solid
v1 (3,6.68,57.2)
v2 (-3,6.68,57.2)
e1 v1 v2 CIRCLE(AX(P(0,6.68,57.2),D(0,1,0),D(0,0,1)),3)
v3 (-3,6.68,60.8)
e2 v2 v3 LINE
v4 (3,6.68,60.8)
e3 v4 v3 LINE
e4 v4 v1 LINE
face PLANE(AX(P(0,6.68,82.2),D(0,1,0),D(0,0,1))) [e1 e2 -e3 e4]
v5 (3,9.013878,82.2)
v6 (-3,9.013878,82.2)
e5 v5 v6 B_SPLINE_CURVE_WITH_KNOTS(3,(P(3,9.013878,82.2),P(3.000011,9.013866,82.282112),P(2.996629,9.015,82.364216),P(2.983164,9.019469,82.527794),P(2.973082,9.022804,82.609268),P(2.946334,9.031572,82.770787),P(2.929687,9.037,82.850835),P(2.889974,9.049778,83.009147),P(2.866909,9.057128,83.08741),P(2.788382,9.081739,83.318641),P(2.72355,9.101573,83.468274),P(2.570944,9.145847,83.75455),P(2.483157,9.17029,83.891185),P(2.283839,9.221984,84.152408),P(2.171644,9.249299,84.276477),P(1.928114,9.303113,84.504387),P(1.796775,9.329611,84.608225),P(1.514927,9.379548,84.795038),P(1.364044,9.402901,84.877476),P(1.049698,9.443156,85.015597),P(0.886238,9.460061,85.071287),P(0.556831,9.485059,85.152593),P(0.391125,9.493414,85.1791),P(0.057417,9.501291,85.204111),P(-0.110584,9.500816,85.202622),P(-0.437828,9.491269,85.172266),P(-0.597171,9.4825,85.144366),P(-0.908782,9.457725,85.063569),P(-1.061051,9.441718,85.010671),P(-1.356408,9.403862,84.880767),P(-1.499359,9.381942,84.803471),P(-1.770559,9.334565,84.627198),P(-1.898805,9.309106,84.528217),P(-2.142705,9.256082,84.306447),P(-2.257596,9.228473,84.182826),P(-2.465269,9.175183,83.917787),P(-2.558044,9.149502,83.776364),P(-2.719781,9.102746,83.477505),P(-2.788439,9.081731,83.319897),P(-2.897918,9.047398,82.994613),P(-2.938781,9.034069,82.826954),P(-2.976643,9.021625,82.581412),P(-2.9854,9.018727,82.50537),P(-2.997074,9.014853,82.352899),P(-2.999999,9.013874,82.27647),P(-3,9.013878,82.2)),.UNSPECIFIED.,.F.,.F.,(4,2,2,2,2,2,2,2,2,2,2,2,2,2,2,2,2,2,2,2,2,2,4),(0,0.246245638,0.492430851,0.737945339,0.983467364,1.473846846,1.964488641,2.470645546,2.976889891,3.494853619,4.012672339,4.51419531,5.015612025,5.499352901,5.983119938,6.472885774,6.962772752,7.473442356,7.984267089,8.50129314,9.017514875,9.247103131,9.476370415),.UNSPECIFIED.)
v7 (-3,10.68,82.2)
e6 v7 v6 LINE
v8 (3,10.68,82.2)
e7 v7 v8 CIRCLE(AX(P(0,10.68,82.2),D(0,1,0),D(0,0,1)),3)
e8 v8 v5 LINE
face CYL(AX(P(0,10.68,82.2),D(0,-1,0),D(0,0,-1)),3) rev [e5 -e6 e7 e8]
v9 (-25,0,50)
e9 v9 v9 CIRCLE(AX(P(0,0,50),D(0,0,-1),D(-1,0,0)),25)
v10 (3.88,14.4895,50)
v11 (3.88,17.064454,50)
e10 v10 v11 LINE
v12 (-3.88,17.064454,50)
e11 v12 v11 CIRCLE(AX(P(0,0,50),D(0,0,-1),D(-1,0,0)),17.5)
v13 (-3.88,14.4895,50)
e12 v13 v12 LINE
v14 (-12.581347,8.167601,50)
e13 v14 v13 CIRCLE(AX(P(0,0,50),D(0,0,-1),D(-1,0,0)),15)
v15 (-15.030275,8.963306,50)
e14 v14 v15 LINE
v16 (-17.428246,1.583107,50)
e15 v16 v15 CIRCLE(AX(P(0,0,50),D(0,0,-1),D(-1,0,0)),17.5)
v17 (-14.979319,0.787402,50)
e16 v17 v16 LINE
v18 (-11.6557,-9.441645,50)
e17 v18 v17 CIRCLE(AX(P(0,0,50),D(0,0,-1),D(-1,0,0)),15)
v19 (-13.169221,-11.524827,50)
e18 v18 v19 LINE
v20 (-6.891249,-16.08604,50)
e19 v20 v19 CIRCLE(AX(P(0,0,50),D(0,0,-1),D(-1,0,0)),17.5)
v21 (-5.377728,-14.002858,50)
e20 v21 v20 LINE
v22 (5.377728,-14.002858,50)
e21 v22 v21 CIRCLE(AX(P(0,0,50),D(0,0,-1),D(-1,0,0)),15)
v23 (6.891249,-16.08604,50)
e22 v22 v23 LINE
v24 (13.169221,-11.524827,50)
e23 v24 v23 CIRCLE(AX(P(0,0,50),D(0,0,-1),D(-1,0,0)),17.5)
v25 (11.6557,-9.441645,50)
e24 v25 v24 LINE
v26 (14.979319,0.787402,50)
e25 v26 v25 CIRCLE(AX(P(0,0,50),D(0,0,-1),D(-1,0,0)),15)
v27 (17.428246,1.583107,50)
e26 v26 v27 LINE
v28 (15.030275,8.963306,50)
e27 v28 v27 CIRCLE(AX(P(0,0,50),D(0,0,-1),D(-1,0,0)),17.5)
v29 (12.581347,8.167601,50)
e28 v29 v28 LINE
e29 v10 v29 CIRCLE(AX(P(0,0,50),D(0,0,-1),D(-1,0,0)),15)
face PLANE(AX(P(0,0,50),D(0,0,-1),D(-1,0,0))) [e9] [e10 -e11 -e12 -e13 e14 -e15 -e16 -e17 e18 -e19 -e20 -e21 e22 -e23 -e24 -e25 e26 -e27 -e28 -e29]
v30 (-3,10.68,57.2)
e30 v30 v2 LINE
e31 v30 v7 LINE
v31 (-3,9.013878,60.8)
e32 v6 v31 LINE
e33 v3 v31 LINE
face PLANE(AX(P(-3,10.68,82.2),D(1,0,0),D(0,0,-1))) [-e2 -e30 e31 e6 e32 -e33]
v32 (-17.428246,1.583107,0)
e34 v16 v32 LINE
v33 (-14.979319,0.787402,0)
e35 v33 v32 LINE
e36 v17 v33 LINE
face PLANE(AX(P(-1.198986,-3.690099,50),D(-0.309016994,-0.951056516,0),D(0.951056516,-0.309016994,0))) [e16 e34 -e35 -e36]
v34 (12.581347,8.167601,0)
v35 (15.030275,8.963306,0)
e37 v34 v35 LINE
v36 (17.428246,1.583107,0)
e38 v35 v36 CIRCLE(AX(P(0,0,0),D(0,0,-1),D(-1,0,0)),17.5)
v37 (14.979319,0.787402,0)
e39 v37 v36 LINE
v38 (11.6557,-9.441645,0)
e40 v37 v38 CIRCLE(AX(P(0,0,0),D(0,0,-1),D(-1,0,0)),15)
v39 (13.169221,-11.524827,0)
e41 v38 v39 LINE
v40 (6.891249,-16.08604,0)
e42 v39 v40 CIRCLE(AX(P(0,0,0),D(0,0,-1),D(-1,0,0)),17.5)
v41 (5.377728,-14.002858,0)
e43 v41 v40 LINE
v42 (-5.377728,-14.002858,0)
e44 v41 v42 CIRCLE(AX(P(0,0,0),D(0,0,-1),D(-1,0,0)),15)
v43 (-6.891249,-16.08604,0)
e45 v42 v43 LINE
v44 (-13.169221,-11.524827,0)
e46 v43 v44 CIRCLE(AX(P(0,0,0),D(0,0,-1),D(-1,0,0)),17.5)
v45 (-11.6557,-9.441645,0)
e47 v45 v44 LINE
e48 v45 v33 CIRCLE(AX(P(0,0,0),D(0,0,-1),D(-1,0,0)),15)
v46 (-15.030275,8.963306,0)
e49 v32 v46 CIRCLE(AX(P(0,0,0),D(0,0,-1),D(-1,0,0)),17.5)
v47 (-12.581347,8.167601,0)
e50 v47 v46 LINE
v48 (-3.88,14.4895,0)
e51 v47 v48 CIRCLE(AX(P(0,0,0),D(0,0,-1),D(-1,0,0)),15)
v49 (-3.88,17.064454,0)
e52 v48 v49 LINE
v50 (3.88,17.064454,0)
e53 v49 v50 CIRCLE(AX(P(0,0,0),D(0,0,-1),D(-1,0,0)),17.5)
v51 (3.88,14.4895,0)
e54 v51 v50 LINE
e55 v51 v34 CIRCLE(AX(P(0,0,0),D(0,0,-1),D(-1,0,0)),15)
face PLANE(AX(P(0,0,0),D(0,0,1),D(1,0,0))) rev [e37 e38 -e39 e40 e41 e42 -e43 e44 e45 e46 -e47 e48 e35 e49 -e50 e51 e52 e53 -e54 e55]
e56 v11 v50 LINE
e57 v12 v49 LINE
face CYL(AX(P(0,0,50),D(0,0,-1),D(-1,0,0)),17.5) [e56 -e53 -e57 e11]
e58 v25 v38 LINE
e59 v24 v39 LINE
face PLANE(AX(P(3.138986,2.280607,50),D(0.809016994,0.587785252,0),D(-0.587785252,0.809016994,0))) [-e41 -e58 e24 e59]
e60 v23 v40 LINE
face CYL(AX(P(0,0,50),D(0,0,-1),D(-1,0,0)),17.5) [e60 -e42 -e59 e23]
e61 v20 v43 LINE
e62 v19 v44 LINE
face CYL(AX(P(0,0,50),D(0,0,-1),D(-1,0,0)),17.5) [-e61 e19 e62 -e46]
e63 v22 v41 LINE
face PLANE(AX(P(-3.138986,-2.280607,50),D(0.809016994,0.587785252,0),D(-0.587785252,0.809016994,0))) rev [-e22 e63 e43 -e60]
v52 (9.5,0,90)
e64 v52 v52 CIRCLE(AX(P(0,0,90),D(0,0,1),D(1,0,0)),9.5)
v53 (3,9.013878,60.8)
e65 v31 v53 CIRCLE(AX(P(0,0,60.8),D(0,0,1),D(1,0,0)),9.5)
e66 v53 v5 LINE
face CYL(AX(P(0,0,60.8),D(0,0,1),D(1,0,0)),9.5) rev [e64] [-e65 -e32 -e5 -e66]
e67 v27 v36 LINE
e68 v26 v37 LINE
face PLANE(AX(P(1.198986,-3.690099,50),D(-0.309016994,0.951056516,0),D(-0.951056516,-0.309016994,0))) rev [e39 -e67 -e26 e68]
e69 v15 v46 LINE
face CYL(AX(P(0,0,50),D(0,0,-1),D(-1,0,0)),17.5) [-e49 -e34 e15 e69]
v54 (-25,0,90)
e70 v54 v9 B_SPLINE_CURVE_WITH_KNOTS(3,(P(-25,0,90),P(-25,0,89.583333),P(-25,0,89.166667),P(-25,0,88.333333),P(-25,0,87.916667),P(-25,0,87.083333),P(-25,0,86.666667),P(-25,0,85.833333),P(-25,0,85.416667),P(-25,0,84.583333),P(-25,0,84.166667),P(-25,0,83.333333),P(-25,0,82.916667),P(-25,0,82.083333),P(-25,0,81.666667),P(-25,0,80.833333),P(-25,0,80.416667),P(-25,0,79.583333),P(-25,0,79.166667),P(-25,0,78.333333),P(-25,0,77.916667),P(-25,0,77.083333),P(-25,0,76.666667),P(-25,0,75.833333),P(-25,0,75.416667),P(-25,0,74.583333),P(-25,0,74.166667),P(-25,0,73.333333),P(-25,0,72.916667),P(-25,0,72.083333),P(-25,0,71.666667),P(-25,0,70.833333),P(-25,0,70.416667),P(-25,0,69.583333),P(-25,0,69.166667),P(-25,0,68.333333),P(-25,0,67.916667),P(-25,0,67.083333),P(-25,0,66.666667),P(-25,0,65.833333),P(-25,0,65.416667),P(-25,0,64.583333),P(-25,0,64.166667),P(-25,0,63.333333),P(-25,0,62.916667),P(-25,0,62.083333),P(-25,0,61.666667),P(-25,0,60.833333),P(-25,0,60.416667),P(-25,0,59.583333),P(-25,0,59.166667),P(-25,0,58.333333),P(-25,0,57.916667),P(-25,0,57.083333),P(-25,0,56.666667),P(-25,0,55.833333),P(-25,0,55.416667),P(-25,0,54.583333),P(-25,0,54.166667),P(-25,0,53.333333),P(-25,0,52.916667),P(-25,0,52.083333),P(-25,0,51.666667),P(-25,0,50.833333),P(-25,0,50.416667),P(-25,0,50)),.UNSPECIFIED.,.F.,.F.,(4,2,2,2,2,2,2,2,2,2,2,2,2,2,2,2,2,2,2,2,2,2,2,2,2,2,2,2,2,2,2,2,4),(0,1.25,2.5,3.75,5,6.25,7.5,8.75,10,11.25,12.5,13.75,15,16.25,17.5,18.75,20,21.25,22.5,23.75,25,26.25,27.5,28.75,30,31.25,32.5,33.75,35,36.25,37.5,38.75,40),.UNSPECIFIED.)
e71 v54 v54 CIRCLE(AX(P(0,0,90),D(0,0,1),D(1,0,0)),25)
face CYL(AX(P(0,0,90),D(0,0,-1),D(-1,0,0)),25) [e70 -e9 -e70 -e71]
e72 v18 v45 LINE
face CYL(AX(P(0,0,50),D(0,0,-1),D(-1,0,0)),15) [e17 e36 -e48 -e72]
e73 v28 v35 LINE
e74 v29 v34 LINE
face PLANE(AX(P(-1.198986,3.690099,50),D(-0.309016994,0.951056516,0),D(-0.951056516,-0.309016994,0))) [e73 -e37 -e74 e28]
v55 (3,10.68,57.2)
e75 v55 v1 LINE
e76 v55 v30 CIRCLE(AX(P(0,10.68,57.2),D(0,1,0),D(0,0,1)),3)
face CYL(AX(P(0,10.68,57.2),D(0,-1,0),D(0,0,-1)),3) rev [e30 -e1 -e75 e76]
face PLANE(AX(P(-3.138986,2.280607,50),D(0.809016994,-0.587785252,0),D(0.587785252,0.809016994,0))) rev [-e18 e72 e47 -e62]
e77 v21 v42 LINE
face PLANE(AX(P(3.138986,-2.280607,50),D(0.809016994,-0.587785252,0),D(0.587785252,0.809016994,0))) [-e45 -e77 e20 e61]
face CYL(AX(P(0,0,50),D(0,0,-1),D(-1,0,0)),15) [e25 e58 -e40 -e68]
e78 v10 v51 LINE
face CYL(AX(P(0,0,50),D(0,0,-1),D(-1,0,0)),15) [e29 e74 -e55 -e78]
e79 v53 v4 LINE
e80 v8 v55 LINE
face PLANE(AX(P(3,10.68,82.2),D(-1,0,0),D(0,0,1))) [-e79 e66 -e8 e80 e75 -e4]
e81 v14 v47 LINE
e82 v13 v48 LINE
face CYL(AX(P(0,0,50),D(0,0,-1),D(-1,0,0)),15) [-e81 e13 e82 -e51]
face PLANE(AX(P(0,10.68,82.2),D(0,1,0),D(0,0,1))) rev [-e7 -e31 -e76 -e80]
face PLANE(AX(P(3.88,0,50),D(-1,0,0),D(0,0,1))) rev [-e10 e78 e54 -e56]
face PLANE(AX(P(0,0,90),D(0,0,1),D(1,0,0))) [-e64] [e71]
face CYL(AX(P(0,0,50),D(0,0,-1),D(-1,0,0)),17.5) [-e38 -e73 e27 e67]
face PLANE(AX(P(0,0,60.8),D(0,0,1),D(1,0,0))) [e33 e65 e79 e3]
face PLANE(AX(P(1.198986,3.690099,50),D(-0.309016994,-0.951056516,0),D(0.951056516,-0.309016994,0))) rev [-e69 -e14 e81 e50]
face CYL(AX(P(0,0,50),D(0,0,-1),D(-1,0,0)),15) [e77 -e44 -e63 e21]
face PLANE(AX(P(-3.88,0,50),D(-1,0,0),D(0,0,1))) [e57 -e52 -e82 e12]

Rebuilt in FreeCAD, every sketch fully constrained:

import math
import FreeCAD as App
import Part
import Sketcher

V = App.Vector
Q = App.Units.Quantity

doc = App.newDocument("Part")
body = doc.addObject("PartDesign::Body", "Body")

sketch1 = body.newObject("Sketcher::SketchObject", "Sketch")
sketch1.AttachmentSupport = (doc.getObject("XY_Plane"), [""])
sketch1.MapMode = "FlatFace"
sketch1.addGeometry(Part.Circle(V(0, 0, 0), V(0, 0, 1), 25), False)
sketch1.addConstraint(Sketcher.Constraint("Coincident", 0, 3, -1, 1))
sketch1.addConstraint(Sketcher.Constraint("Diameter", 0, Q("50 mm")))
pad1 = body.newObject("PartDesign::Pad", "Pad")
pad1.Profile = sketch1
pad1.Length = 90

sketch2 = body.newObject("Sketcher::SketchObject", "Sketch001")
sketch2.AttachmentSupport = (doc.getObject("XY_Plane"), [""])
sketch2.MapMode = "FlatFace"
sketch2.addGeometry(Part.Circle(V(0, 0, 0), V(0, 0, 1), 25), False)
sketch2.addGeometry(Part.ArcOfCircle(Part.Circle(V(0, 0, 0), V(0, 0, 1), 17.5), math.radians(77), math.radians(103)), False)
sketch2.addGeometry(Part.ArcOfCircle(Part.Circle(V(0, 0, 0), V(0, 0, 1), 17.5), math.radians(103), math.radians(149)), False)
sketch2.addGeometry(Part.ArcOfCircle(Part.Circle(V(0, 0, 0), V(0, 0, 1), 17.5), math.radians(149), math.radians(175)), False)
sketch2.addGeometry(Part.ArcOfCircle(Part.Circle(V(0, 0, 0), V(0, 0, 1), 17.5), math.radians(174.81), math.radians(180)), False)
sketch2.addGeometry(Part.ArcOfCircle(Part.Circle(V(0, 0, 0), V(0, 0, 1), 17.5), math.radians(180), math.radians(221)), False)
sketch2.addGeometry(Part.ArcOfCircle(Part.Circle(V(0, 0, 0), V(0, 0, 1), 17.5), math.radians(-139), math.radians(-113)), False)
sketch2.addGeometry(Part.ArcOfCircle(Part.Circle(V(0, 0, 0), V(0, 0, 1), 17.5), math.radians(-113), math.radians(-67)), False)
sketch2.addGeometry(Part.ArcOfCircle(Part.Circle(V(0, 0, 0), V(0, 0, 1), 17.5), math.radians(-67), math.radians(-41)), False)
sketch2.addGeometry(Part.ArcOfCircle(Part.Circle(V(0, 0, 0), V(0, 0, 1), 17.5), math.radians(-41), math.radians(5)), False)
sketch2.addGeometry(Part.ArcOfCircle(Part.Circle(V(0, 0, 0), V(0, 0, 1), 17.5), math.radians(5), math.radians(31)), False)
sketch2.addGeometry(Part.ArcOfCircle(Part.Circle(V(0, 0, 0), V(0, 0, 1), 17.5), math.radians(31), math.radians(77)), False)
sketch2.addConstraint(Sketcher.Constraint("Tangent", 1, 2, 2, 1))
sketch2.addConstraint(Sketcher.Constraint("Tangent", 2, 2, 3, 1))
sketch2.addConstraint(Sketcher.Constraint("Tangent", 3, 2, 4, 1))
sketch2.addConstraint(Sketcher.Constraint("Tangent", 4, 2, 5, 1))
sketch2.addConstraint(Sketcher.Constraint("Tangent", 5, 2, 6, 1))
sketch2.addConstraint(Sketcher.Constraint("Tangent", 6, 2, 7, 1))
sketch2.addConstraint(Sketcher.Constraint("Tangent", 7, 2, 8, 1))
sketch2.addConstraint(Sketcher.Constraint("Tangent", 8, 2, 9, 1))
sketch2.addConstraint(Sketcher.Constraint("Tangent", 9, 2, 10, 1))
sketch2.addConstraint(Sketcher.Constraint("Tangent", 10, 2, 11, 1))
sketch2.addConstraint(Sketcher.Constraint("Tangent", 11, 2, 1, 1))
sketch2.addConstraint(Sketcher.Constraint("Coincident", 0, 3, -1, 1))
sketch2.addConstraint(Sketcher.Constraint("Coincident", 1, 3, -1, 1))
sketch2.addConstraint(Sketcher.Constraint("Coincident", 3, 3, -1, 1))
sketch2.addConstraint(Sketcher.Constraint("Coincident", 5, 3, -1, 1))
sketch2.addConstraint(Sketcher.Constraint("Coincident", 7, 3, -1, 1))
sketch2.addConstraint(Sketcher.Constraint("Coincident", 9, 3, -1, 1))
sketch2.addConstraint(Sketcher.Constraint("PointOnObject", 4, 2, -1))
sketch2.addConstraint(Sketcher.Constraint("Horizontal", 6, 2, 7, 2))
sketch2.addConstraint(Sketcher.Constraint("Horizontal", 5, 2, 8, 2))
sketch2.addConstraint(Sketcher.Constraint("Horizontal", 3, 2, 9, 2))
sketch2.addConstraint(Sketcher.Constraint("Horizontal", 2, 2, 10, 2))
sketch2.addConstraint(Sketcher.Constraint("Horizontal", 1, 2, 11, 2))
sketch2.addConstraint(Sketcher.Constraint("Diameter", 0, Q("50 mm")))
sketch2.addConstraint(Sketcher.Constraint("Radius", 1, Q("17.5 mm")))
sketch2.addConstraint(Sketcher.Constraint("DistanceX", 1, 2, -1, 1, Q("3.88 mm")))
sketch2.addConstraint(Sketcher.Constraint("DistanceY", 3, 2, 2, 2, Q("7.380199 mm")))
sketch2.addConstraint(Sketcher.Constraint("DistanceX", 5, 2, -1, 1, Q("13.169221 mm")))
sketch2.addConstraint(Sketcher.Constraint("DistanceX", 6, 2, -1, 1, Q("6.891249 mm")))
sketch2.addConstraint(Sketcher.Constraint("DistanceY", 2, 2, 1, 2, Q("8.101149 mm")))
pocket1 = body.newObject("PartDesign::Pocket", "Pocket")
pocket1.Profile = sketch2
pocket1.Length = 50
pocket1.Reversed = True

sketch3 = body.newObject("Sketcher::SketchObject", "Sketch002")
sketch3.AttachmentSupport = (doc.getObject("XY_Plane"), [""])
sketch3.MapMode = "FlatFace"
sketch3.addGeometry(Part.LineSegment(V(3.9, 14.5, 0), V(3.9, 17.1, 0)), False)
sketch3.addGeometry(Part.ArcOfCircle(Part.Circle(V(0, 0, 0), V(0, 0, 1), 17.5), math.radians(31), math.radians(77)), False)
sketch3.addGeometry(Part.LineSegment(V(15, 9, 0), V(12.6, 8.2, 0)), False)
sketch3.addGeometry(Part.ArcOfCircle(Part.Circle(V(0, 0, 0), V(0, 0, 1), 15), math.radians(33), math.radians(75)), False)
sketch3.addGeometry(Part.ArcOfCircle(Part.Circle(V(0, 0, 0), V(0, 0, 1), 15), math.radians(105), math.radians(147)), False)
sketch3.addGeometry(Part.LineSegment(V(-12.6, 8.2, 0), V(-15, 9, 0)), False)
sketch3.addGeometry(Part.ArcOfCircle(Part.Circle(V(0, 0, 0), V(0, 0, 1), 17.5), math.radians(103), math.radians(149)), False)
sketch3.addGeometry(Part.LineSegment(V(-3.9, 17.1, 0), V(-3.9, 14.5, 0)), False)
sketch3.addGeometry(Part.LineSegment(V(-17.4, 1.6, 0), V(-15, 0.8, 0)), False)
sketch3.addGeometry(Part.ArcOfCircle(Part.Circle(V(0, 0, 0), V(0, 0, 1), 15), math.radians(176.99), math.radians(180)), False)
sketch3.addGeometry(Part.ArcOfCircle(Part.Circle(V(0, 0, 0), V(0, 0, 1), 15), math.radians(180), math.radians(219)), False)
sketch3.addGeometry(Part.LineSegment(V(-11.7, -9.4, 0), V(-13.2, -11.5, 0)), False)
sketch3.addGeometry(Part.ArcOfCircle(Part.Circle(V(0, 0, 0), V(0, 0, 1), 17.5), math.radians(180), math.radians(221)), False)
sketch3.addGeometry(Part.ArcOfCircle(Part.Circle(V(0, 0, 0), V(0, 0, 1), 17.5), math.radians(174.81), math.radians(180)), False)
sketch3.addGeometry(Part.LineSegment(V(-6.9, -16.1, 0), V(-5.4, -14, 0)), False)
sketch3.addGeometry(Part.ArcOfCircle(Part.Circle(V(0, 0, 0), V(0, 0, 1), 15), math.radians(-111), math.radians(-69)), False)
sketch3.addGeometry(Part.LineSegment(V(5.4, -14, 0), V(6.9, -16.1, 0)), False)
sketch3.addGeometry(Part.ArcOfCircle(Part.Circle(V(0, 0, 0), V(0, 0, 1), 17.5), math.radians(-113), math.radians(-67)), False)
sketch3.addGeometry(Part.LineSegment(V(15, 0.8, 0), V(17.4, 1.6, 0)), False)
sketch3.addGeometry(Part.ArcOfCircle(Part.Circle(V(0, 0, 0), V(0, 0, 1), 17.5), math.radians(-41), math.radians(5)), False)
sketch3.addGeometry(Part.LineSegment(V(13.2, -11.5, 0), V(11.7, -9.4, 0)), False)
sketch3.addGeometry(Part.ArcOfCircle(Part.Circle(V(0, 0, 0), V(0, 0, 1), 15), math.radians(-39), math.radians(3)), False)
sketch3.addConstraint(Sketcher.Constraint("Coincident", 0, 2, 1, 2))
sketch3.addConstraint(Sketcher.Constraint("Coincident", 1, 1, 2, 1))
sketch3.addConstraint(Sketcher.Constraint("Coincident", 2, 2, 3, 1))
sketch3.addConstraint(Sketcher.Constraint("Coincident", 3, 2, 0, 1))
sketch3.addConstraint(Sketcher.Constraint("Coincident", 4, 2, 5, 1))
sketch3.addConstraint(Sketcher.Constraint("Coincident", 5, 2, 6, 2))
sketch3.addConstraint(Sketcher.Constraint("Coincident", 6, 1, 7, 1))
sketch3.addConstraint(Sketcher.Constraint("Coincident", 7, 2, 4, 1))
sketch3.addConstraint(Sketcher.Constraint("Coincident", 8, 2, 9, 1))
sketch3.addConstraint(Sketcher.Constraint("Tangent", 9, 2, 10, 1))
sketch3.addConstraint(Sketcher.Constraint("Coincident", 10, 2, 11, 1))
sketch3.addConstraint(Sketcher.Constraint("Coincident", 11, 2, 12, 2))
sketch3.addConstraint(Sketcher.Constraint("Tangent", 12, 1, 13, 2))
sketch3.addConstraint(Sketcher.Constraint("Coincident", 13, 1, 8, 1))
sketch3.addConstraint(Sketcher.Constraint("Coincident", 14, 2, 15, 1))
sketch3.addConstraint(Sketcher.Constraint("Coincident", 15, 2, 16, 1))
sketch3.addConstraint(Sketcher.Constraint("Coincident", 16, 2, 17, 2))
sketch3.addConstraint(Sketcher.Constraint("Coincident", 17, 1, 14, 1))
sketch3.addConstraint(Sketcher.Constraint("Coincident", 18, 2, 19, 2))
sketch3.addConstraint(Sketcher.Constraint("Coincident", 19, 1, 20, 1))
sketch3.addConstraint(Sketcher.Constraint("Coincident", 20, 2, 21, 1))
sketch3.addConstraint(Sketcher.Constraint("Coincident", 21, 2, 18, 1))
sketch3.addConstraint(Sketcher.Constraint("Vertical", 0))
sketch3.addConstraint(Sketcher.Constraint("Vertical", 7))
sketch3.addConstraint(Sketcher.Constraint("Coincident", 1, 3, -1, 1))
sketch3.addConstraint(Sketcher.Constraint("Coincident", 3, 3, -1, 1))
sketch3.addConstraint(Sketcher.Constraint("Coincident", 4, 3, -1, 1))
sketch3.addConstraint(Sketcher.Constraint("Coincident", 6, 3, -1, 1))
sketch3.addConstraint(Sketcher.Constraint("Coincident", 9, 3, -1, 1))
sketch3.addConstraint(Sketcher.Constraint("Coincident", 12, 3, -1, 1))
sketch3.addConstraint(Sketcher.Constraint("Coincident", 15, 3, -1, 1))
sketch3.addConstraint(Sketcher.Constraint("Coincident", 17, 3, -1, 1))
sketch3.addConstraint(Sketcher.Constraint("Coincident", 19, 3, -1, 1))
sketch3.addConstraint(Sketcher.Constraint("Coincident", 21, 3, -1, 1))
sketch3.addConstraint(Sketcher.Constraint("Equal", 3, 4))
sketch3.addConstraint(Sketcher.Constraint("Equal", 1, 6))
sketch3.addConstraint(Sketcher.Constraint("Equal", 4, 9))
sketch3.addConstraint(Sketcher.Constraint("Equal", 9, 10))
sketch3.addConstraint(Sketcher.Constraint("Equal", 6, 12))
sketch3.addConstraint(Sketcher.Constraint("Equal", 12, 13))
sketch3.addConstraint(Sketcher.Constraint("Equal", 10, 15))
sketch3.addConstraint(Sketcher.Constraint("Equal", 13, 17))
sketch3.addConstraint(Sketcher.Constraint("Equal", 17, 19))
sketch3.addConstraint(Sketcher.Constraint("Equal", 15, 21))
sketch3.addConstraint(Sketcher.Constraint("PointOnObject", 9, 2, -1))
sketch3.addConstraint(Sketcher.Constraint("PointOnObject", 12, 1, -1))
sketch3.addConstraint(Sketcher.Constraint("Parallel", 5, 8))
sketch3.addConstraint(Sketcher.Constraint("Parallel", 11, 14))
sketch3.addConstraint(Sketcher.Constraint("Parallel", 2, 18))
sketch3.addConstraint(Sketcher.Constraint("Parallel", 16, 20))
sketch3.addConstraint(Sketcher.Constraint("Horizontal", 2, 2, 4, 2))
sketch3.addConstraint(Sketcher.Constraint("Horizontal", 1, 1, 5, 2))
sketch3.addConstraint(Sketcher.Constraint("Horizontal", 0, 2, 6, 1))
sketch3.addConstraint(Sketcher.Constraint("Horizontal", 14, 2, 15, 2))
sketch3.addConstraint(Sketcher.Constraint("Horizontal", 16, 2, 17, 1))
sketch3.addConstraint(Sketcher.Constraint("Horizontal", 13, 1, 18, 2))
sketch3.addConstraint(Sketcher.Constraint("Horizontal", 11, 2, 19, 1))
sketch3.addConstraint(Sketcher.Constraint("Equal", 5, 8))
sketch3.addConstraint(Sketcher.Constraint("Equal", 8, 11))
sketch3.addConstraint(Sketcher.Constraint("Equal", 11, 14))
sketch3.addConstraint(Sketcher.Constraint("Radius", 3, Q("15 mm")))
sketch3.addConstraint(Sketcher.Constraint("Radius", 1, Q("17.5 mm")))
sketch3.addConstraint(Sketcher.Constraint("Angle", 2, Q("-162 deg")))
sketch3.addConstraint(Sketcher.Constraint("Angle", 11, Q("-126 deg")))
sketch3.addConstraint(Sketcher.Constraint("DistanceX", -1, 1, 0, 2, Q("3.88 mm")))
sketch3.addConstraint(Sketcher.Constraint("DistanceY", -1, 1, 2, 2, Q("8.167601 mm")))
pocket2 = body.newObject("PartDesign::Pocket", "Pocket001")
pocket2.Profile = sketch3
pocket2.Length = 50
pocket2.Reversed = True

sketch4 = body.newObject("Sketcher::SketchObject", "Sketch003")
sketch4.AttachmentSupport = (doc.getObject("XY_Plane"), [""])
sketch4.MapMode = "FlatFace"
sketch4.AttachmentOffset = App.Placement(V(0, 0, 90), App.Rotation())
sketch4.addGeometry(Part.Circle(V(0, 0, 0), V(0, 0, 1), 10), False)
sketch4.addConstraint(Sketcher.Constraint("Coincident", 0, 3, -1, 1))
sketch4.addConstraint(Sketcher.Constraint("Diameter", 0, Q("19 mm")))
pocket3 = body.newObject("PartDesign::Pocket", "Pocket002")
pocket3.Profile = sketch4
pocket3.Length = 29.2

sketch5 = body.newObject("Sketcher::SketchObject", "Sketch004")
sketch5.AttachmentSupport = (doc.getObject("XZ_Plane"), [""])
sketch5.MapMode = "FlatFace"
sketch5.AttachmentOffset = App.Placement(V(0, 0, -6.68), App.Rotation())
sketch5.addGeometry(Part.LineSegment(V(-3, 57.2, 0), V(-3, 82.2, 0)), False)
sketch5.addGeometry(Part.ArcOfCircle(Part.Circle(V(0, 82.2, 0), V(0, 0, 1), 3), math.radians(0), math.radians(180)), False)
sketch5.addGeometry(Part.LineSegment(V(3, 82.2, 0), V(3, 57.2, 0)), False)
sketch5.addGeometry(Part.ArcOfCircle(Part.Circle(V(0, 57.2, 0), V(0, 0, 1), 3), math.radians(180), math.radians(360)), False)
sketch5.addConstraint(Sketcher.Constraint("Tangent", 0, 2, 1, 2))
sketch5.addConstraint(Sketcher.Constraint("Tangent", 1, 1, 2, 1))
sketch5.addConstraint(Sketcher.Constraint("Tangent", 2, 2, 3, 2))
sketch5.addConstraint(Sketcher.Constraint("Tangent", 3, 1, 0, 1))
sketch5.addConstraint(Sketcher.Constraint("Vertical", 0))
sketch5.addConstraint(Sketcher.Constraint("Vertical", 2))
sketch5.addConstraint(Sketcher.Constraint("PointOnObject", 1, 3, -2))
sketch5.addConstraint(Sketcher.Constraint("Radius", 1, Q("3 mm")))
sketch5.addConstraint(Sketcher.Constraint("DistanceY", 0, 1, 0, 2, Q("25 mm")))
sketch5.addConstraint(Sketcher.Constraint("DistanceY", -1, 1, 1, 3, Q("82.2 mm")))
pocket4 = body.newObject("PartDesign::Pocket", "Pocket003")
pocket4.Profile = sketch5
pocket4.Length = 4

doc.recompute()
